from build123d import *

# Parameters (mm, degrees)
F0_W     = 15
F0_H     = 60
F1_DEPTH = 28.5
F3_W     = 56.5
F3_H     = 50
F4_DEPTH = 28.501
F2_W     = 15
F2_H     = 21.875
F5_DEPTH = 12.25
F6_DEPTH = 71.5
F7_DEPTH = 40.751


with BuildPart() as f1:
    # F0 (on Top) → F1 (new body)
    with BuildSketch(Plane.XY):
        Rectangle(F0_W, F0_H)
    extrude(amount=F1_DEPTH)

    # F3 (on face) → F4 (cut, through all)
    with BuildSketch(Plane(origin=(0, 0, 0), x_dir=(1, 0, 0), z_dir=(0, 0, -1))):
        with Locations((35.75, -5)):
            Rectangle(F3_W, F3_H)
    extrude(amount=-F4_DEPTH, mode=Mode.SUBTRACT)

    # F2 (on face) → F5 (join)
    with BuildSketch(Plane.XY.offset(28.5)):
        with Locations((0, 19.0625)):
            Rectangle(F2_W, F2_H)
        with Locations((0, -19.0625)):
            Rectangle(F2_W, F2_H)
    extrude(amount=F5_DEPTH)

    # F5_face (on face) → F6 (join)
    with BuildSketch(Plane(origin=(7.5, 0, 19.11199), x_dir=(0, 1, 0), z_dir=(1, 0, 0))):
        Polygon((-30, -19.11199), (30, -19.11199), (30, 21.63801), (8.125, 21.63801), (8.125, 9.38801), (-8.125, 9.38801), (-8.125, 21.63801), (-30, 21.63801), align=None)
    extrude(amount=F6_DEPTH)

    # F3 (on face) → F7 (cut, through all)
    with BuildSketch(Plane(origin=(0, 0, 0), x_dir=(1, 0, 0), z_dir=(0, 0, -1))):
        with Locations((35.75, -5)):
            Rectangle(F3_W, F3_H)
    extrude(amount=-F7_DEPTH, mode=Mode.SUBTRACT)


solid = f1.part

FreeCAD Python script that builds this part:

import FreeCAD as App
import Part
import Sketcher

V = App.Vector

doc = App.newDocument("Part")
body = doc.addObject("PartDesign::Body", "Body")

sketch1 = body.newObject("Sketcher::SketchObject", "Sketch")
sketch1.AttachmentSupport = (doc.getObject("XY_Plane"), [""])
sketch1.MapMode = "FlatFace"
sketch1.addGeometry([
    Part.LineSegment(V(-8, 30, 0), V(-8, -30, 0)),
    Part.LineSegment(V(-8, -30, 0), V(8, -30, 0)),
    Part.LineSegment(V(8, -30, 0), V(8, 30, 0)),
    Part.LineSegment(V(8, 30, 0), V(-8, 30, 0)),
], False)
sketch1.addConstraint([
    Sketcher.Constraint("Coincident", 0, 2, 1, 1),
    Sketcher.Constraint("Coincident", 1, 2, 2, 1),
    Sketcher.Constraint("Coincident", 2, 2, 3, 1),
    Sketcher.Constraint("Coincident", 3, 2, 0, 1),
    Sketcher.Constraint("Vertical", 0),
    Sketcher.Constraint("Horizontal", 1),
    Sketcher.Constraint("Vertical", 2),
    Sketcher.Constraint("Horizontal", 3),
    Sketcher.Constraint("Symmetric", 0, 2, 2, 2, -1, 1),
    Sketcher.Constraint("DistanceX", 1, 1, 1, 2, 15.0),
    Sketcher.Constraint("DistanceY", 0, 2, 0, 1, 60.0),
])
pad1 = body.newObject("PartDesign::Pad", "Pad")
pad1.Profile = sketch1
pad1.Length = 28.5

sketch2 = body.newObject("Sketcher::SketchObject", "Sketch001")
sketch2.AttachmentSupport = (doc.getObject("XY_Plane"), [""])
sketch2.MapMode = "FlatFace"
sketch2.addGeometry([
    Part.LineSegment(V(8, -20, 0), V(8, 30, 0)),
    Part.LineSegment(V(8, 30, 0), V(64, 30, 0)),
    Part.LineSegment(V(64, 30, 0), V(64, -20, 0)),
    Part.LineSegment(V(64, -20, 0), V(8, -20, 0)),
], False)
sketch2.addConstraint([
    Sketcher.Constraint("Coincident", 0, 2, 1, 1),
    Sketcher.Constraint("Coincident", 1, 2, 2, 1),
    Sketcher.Constraint("Coincident", 2, 2, 3, 1),
    Sketcher.Constraint("Coincident", 3, 2, 0, 1),
    Sketcher.Constraint("Vertical", 0),
    Sketcher.Constraint("Horizontal", 1),
    Sketcher.Constraint("Vertical", 2),
    Sketcher.Constraint("Horizontal", 3),
    Sketcher.Constraint("DistanceY", 0, 1, 0, 2, 50.0),
    Sketcher.Constraint("DistanceX", 1, 1, 1, 2, 56.5),
    Sketcher.Constraint("DistanceY", -1, 1, 0, 2, 30.0),
    Sketcher.Constraint("DistanceX", -1, 1, 1, 2, 64.0),
])
pocket1 = body.newObject("PartDesign::Pocket", "Pocket")
pocket1.Profile = sketch2
pocket1.Type = "ThroughAll"
pocket1.Reversed = True

sketch3 = body.newObject("Sketcher::SketchObject", "Sketch002")
sketch3.AttachmentSupport = (doc.getObject("XY_Plane"), [""])
sketch3.MapMode = "FlatFace"
sketch3.AttachmentOffset = App.Placement(V(0, 0, 28.5), App.Rotation())
sketch3.addGeometry([
    Part.LineSegment(V(-8, 30, 0), V(-8, 8, 0)),
    Part.LineSegment(V(-8, 8, 0), V(8, 8, 0)),
    Part.LineSegment(V(8, 8, 0), V(8, 30, 0)),
    Part.LineSegment(V(8, 30, 0), V(-8, 30, 0)),
    Part.LineSegment(V(-8, -8, 0), V(-8, -30, 0)),
    Part.LineSegment(V(-8, -30, 0), V(8, -30, 0)),
    Part.LineSegment(V(8, -30, 0), V(8, -8, 0)),
    Part.LineSegment(V(8, -8, 0), V(-8, -8, 0)),
], False)
sketch3.addConstraint([
    Sketcher.Constraint("Coincident", 0, 2, 1, 1),
    Sketcher.Constraint("Coincident", 1, 2, 2, 1),
    Sketcher.Constraint("Coincident", 2, 2, 3, 1),
    Sketcher.Constraint("Coincident", 3, 2, 0, 1),
    Sketcher.Constraint("Coincident", 4, 2, 5, 1),
    Sketcher.Constraint("Coincident", 5, 2, 6, 1),
    Sketcher.Constraint("Coincident", 6, 2, 7, 1),
    Sketcher.Constraint("Coincident", 7, 2, 4, 1),
    Sketcher.Constraint("Vertical", 0),
    Sketcher.Constraint("Horizontal", 1),
    Sketcher.Constraint("Vertical", 2),
    Sketcher.Constraint("Horizontal", 3),
    Sketcher.Constraint("Vertical", 4),
    Sketcher.Constraint("Horizontal", 5),
    Sketcher.Constraint("Vertical", 6),
    Sketcher.Constraint("Horizontal", 7),
    Sketcher.Constraint("Symmetric", 2, 2, 4, 2, -1, 1),
    Sketcher.Constraint("Symmetric", 0, 2, 6, 2, -1, 1),
    Sketcher.Constraint("Vertical", 3, 2, 4, 2),
    Sketcher.Constraint("DistanceX", 1, 1, 1, 2, 15.0),
    Sketcher.Constraint("DistanceY", -1, 1, 2, 2, 30.0),
    Sketcher.Constraint("DistanceY", 0, 2, 0, 1, 21.875),
])
pad2 = body.newObject("PartDesign::Pad", "Pad001")
pad2.Profile = sketch3
pad2.Length = 12.25

sketch4 = body.newObject("Sketcher::SketchObject", "Sketch003")
sketch4.AttachmentSupport = (doc.getObject("YZ_Plane"), [""])
sketch4.MapMode = "FlatFace"
sketch4.AttachmentOffset = App.Placement(V(0, 0, 7.5), App.Rotation())
sketch4.addGeometry([
    Part.LineSegment(V(-30, 0, 0), V(30, 0, 0)),
    Part.LineSegment(V(30, 0, 0), V(30, 41, 0)),
    Part.LineSegment(V(30, 41, 0), V(8, 41, 0)),
    Part.LineSegment(V(8, 41, 0), V(8, 28, 0)),
    Part.LineSegment(V(8, 28, 0), V(-8, 28, 0)),
    Part.LineSegment(V(-8, 28, 0), V(-8, 41, 0)),
    Part.LineSegment(V(-8, 41, 0), V(-30, 41, 0)),
    Part.LineSegment(V(-30, 41, 0), V(-30, 0, 0)),
], False)
sketch4.addConstraint([
    Sketcher.Constraint("Coincident", 0, 2, 1, 1),
    Sketcher.Constraint("Coincident", 1, 2, 2, 1),
    Sketcher.Constraint("Coincident", 2, 2, 3, 1),
    Sketcher.Constraint("Coincident", 3, 2, 4, 1),
    Sketcher.Constraint("Coincident", 4, 2, 5, 1),
    Sketcher.Constraint("Coincident", 5, 2, 6, 1),
    Sketcher.Constraint("Coincident", 6, 2, 7, 1),
    Sketcher.Constraint("Coincident", 7, 2, 0, 1),
    Sketcher.Constraint("Horizontal", 0),
    Sketcher.Constraint("Vertical", 1),
    Sketcher.Constraint("Horizontal", 2),
    Sketcher.Constraint("Vertical", 3),
    Sketcher.Constraint("Horizontal", 4),
    Sketcher.Constraint("Vertical", 5),
    Sketcher.Constraint("Horizontal", 6),
    Sketcher.Constraint("Vertical", 7),
    Sketcher.Constraint("Symmetric", 0, 2, 7, 2, -1, 1),
    Sketcher.Constraint("Symmetric", 2, 2, 5, 2, -2),
    Sketcher.Constraint("DistanceX", 0, 1, 0, 2, 60.0),
    Sketcher.Constraint("DistanceX", 4, 2, 4, 1, 16.25),
    Sketcher.Constraint("DistanceY", 1, 1, 1, 2, 40.75),
    Sketcher.Constraint("DistanceY", 3, 2, 3, 1, 12.25),
])
pad3 = body.newObject("PartDesign::Pad", "Pad002")
pad3.Profile = sketch4
pad3.Length = 71.5

sketch5 = body.newObject("Sketcher::SketchObject", "Sketch004")
sketch5.AttachmentSupport = (doc.getObject("XY_Plane"), [""])
sketch5.MapMode = "FlatFace"
sketch5.addGeometry([
    Part.LineSegment(V(8, -20, 0), V(8, 30, 0)),
    Part.LineSegment(V(8, 30, 0), V(64, 30, 0)),
    Part.LineSegment(V(64, 30, 0), V(64, -20, 0)),
    Part.LineSegment(V(64, -20, 0), V(8, -20, 0)),
], False)
sketch5.addConstraint([
    Sketcher.Constraint("Coincident", 0, 2, 1, 1),
    Sketcher.Constraint("Coincident", 1, 2, 2, 1),
    Sketcher.Constraint("Coincident", 2, 2, 3, 1),
    Sketcher.Constraint("Coincident", 3, 2, 0, 1),
    Sketcher.Constraint("Vertical", 0),
    Sketcher.Constraint("Horizontal", 1),
    Sketcher.Constraint("Vertical", 2),
    Sketcher.Constraint("Horizontal", 3),
    Sketcher.Constraint("DistanceY", 0, 1, 0, 2, 50.0),
    Sketcher.Constraint("DistanceX", 1, 1, 1, 2, 56.5),
    Sketcher.Constraint("DistanceY", -1, 1, 0, 2, 30.0),
    Sketcher.Constraint("DistanceX", -1, 1, 1, 2, 64.0),
])
pocket2 = body.newObject("PartDesign::Pocket", "Pocket001")
pocket2.Profile = sketch5
pocket2.Type = "ThroughAll"
pocket2.Reversed = True

doc.recompute()
